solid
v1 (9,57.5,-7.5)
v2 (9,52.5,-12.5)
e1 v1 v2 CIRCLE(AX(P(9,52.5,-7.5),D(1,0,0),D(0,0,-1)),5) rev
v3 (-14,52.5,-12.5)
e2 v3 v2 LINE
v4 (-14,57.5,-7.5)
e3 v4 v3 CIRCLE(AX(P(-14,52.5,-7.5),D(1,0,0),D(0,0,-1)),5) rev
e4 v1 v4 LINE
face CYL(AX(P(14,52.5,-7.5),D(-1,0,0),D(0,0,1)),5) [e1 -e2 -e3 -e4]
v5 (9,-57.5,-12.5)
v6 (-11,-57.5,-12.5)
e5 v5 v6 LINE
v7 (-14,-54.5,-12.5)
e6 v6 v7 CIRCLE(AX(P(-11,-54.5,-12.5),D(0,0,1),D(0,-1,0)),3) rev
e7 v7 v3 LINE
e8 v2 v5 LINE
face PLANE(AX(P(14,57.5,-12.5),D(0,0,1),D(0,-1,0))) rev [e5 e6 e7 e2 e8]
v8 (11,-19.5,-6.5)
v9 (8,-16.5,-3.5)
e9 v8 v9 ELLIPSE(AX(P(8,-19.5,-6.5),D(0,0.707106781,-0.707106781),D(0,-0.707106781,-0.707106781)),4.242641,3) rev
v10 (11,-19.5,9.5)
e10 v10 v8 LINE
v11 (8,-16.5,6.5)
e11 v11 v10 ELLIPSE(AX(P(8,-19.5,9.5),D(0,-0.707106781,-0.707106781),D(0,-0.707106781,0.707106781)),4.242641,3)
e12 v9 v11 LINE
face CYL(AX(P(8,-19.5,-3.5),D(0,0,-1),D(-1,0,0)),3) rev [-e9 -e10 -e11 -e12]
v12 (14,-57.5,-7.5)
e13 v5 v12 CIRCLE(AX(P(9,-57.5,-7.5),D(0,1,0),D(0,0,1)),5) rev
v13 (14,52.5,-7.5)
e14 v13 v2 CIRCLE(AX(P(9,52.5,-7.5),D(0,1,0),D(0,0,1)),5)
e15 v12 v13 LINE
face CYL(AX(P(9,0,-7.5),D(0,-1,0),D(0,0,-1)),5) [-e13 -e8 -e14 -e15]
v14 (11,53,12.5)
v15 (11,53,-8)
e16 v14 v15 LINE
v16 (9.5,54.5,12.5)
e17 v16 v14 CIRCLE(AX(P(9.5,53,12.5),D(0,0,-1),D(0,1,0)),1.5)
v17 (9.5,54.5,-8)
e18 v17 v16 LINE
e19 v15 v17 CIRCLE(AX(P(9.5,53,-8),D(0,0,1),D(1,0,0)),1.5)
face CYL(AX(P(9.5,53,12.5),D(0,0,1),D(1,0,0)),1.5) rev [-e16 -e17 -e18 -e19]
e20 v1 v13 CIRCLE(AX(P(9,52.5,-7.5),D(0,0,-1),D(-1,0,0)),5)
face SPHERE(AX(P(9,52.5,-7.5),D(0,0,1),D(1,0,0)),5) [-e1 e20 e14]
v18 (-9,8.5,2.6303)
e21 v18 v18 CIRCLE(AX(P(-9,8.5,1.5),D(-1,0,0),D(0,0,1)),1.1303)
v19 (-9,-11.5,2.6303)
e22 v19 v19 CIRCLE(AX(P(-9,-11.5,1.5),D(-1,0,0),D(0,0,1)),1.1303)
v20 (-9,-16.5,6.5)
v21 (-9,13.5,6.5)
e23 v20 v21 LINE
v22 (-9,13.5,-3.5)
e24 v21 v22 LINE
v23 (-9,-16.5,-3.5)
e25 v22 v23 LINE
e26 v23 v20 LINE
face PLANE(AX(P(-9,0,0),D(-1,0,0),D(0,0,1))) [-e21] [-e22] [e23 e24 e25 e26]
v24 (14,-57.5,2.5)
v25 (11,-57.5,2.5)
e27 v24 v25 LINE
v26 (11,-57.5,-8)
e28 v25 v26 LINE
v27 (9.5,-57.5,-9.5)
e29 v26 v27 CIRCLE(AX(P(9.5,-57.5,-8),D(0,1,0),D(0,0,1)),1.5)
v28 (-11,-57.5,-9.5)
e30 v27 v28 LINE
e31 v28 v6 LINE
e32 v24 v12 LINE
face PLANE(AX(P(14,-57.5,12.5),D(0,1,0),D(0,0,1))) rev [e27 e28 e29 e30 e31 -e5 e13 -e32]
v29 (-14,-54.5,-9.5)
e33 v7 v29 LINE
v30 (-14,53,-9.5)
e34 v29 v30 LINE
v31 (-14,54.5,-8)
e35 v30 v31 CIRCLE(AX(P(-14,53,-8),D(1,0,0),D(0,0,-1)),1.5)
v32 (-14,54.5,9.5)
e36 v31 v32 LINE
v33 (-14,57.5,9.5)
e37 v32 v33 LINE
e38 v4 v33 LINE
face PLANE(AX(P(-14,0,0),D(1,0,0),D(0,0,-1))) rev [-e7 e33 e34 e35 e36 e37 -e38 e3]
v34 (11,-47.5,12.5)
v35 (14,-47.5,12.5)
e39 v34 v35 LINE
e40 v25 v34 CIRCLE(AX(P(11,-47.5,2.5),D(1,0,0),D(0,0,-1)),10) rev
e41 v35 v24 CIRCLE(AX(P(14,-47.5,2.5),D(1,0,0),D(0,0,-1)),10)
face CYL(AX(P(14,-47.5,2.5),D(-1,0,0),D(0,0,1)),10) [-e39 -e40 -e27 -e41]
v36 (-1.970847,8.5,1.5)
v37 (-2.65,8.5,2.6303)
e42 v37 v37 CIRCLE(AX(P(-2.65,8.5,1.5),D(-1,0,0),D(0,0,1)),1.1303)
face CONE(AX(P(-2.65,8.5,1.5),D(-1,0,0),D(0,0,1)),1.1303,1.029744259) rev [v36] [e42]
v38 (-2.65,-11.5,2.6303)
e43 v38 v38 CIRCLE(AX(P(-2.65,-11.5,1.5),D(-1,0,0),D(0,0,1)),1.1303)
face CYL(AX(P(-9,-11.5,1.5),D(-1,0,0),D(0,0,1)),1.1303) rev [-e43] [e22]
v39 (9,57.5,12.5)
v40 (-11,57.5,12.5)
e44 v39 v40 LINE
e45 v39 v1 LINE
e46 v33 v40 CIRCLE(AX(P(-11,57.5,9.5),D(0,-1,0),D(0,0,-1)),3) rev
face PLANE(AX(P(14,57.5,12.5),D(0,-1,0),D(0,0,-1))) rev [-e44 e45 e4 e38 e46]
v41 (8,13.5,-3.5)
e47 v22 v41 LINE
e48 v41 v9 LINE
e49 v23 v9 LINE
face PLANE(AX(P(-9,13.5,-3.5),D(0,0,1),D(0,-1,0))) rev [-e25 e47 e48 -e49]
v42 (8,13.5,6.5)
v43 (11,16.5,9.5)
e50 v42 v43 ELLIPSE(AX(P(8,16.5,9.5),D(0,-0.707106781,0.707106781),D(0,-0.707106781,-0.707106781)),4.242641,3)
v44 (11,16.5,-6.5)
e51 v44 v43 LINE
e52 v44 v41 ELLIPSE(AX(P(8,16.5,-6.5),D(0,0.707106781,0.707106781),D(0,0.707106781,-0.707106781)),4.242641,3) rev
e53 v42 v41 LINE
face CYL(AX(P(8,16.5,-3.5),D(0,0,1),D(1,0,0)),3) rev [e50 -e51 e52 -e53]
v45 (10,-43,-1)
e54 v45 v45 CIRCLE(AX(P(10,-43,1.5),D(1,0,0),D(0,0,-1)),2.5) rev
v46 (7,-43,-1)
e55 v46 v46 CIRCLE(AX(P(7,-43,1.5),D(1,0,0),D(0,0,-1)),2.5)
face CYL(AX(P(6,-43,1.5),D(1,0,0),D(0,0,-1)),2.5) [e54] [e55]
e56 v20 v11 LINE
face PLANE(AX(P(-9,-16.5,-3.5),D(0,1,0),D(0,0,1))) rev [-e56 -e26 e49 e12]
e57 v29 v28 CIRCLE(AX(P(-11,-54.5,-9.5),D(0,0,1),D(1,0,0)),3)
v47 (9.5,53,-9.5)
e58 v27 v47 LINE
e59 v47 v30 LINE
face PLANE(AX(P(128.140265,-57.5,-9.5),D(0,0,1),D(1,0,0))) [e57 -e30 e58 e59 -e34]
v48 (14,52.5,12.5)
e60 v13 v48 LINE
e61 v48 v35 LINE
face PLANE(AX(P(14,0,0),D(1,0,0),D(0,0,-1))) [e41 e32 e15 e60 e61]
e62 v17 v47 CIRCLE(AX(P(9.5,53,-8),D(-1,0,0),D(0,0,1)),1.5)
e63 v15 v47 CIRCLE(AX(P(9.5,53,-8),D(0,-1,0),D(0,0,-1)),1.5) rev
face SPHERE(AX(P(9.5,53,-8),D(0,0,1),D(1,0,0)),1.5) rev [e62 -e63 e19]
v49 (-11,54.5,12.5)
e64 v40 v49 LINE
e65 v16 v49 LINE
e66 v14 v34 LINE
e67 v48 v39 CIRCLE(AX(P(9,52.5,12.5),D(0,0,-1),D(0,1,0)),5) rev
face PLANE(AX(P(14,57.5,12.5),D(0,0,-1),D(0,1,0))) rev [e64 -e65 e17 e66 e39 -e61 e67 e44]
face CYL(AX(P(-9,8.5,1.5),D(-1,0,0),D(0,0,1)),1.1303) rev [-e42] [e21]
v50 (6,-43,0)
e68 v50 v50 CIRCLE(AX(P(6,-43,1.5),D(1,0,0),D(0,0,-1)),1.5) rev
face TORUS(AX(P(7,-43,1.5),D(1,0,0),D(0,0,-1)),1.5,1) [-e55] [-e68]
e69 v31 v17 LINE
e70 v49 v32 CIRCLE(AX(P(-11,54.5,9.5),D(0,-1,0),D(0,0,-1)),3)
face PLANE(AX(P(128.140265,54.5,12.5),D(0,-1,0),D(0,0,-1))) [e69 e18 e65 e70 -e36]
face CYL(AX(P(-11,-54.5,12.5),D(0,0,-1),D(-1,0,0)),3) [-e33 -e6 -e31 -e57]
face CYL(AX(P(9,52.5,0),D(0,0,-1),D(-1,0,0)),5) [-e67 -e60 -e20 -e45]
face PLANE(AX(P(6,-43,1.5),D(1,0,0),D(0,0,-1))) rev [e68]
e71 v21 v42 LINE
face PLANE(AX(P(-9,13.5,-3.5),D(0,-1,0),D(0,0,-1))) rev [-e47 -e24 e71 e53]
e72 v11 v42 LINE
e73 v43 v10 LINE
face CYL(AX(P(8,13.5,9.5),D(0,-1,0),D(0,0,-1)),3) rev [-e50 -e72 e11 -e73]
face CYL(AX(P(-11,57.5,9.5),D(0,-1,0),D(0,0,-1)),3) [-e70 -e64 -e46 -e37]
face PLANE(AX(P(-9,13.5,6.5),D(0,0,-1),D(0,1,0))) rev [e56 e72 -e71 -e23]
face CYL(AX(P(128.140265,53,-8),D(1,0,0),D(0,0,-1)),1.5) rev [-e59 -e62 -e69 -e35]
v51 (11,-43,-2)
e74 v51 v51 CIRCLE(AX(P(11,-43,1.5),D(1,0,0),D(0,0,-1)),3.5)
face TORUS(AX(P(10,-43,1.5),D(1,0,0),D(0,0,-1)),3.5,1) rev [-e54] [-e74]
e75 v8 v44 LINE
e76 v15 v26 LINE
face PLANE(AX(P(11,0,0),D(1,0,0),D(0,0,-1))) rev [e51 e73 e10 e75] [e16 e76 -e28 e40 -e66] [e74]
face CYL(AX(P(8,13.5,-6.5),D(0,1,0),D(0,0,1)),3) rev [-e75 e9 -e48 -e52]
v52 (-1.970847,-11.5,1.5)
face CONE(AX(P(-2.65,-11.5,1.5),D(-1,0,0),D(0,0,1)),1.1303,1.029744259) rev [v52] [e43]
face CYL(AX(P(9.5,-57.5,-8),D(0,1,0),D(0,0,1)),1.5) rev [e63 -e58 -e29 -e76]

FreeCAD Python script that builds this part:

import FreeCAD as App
import Part
import Sketcher
from FreeCAD import Vector
Q = App.Units.Quantity


def edges_at(feature, points):
    """Names of the edges that pass closest to the given points."""
    edges = feature.Shape.Edges
    near = lambda p: min(range(len(edges)), key=lambda i: edges[i].distToShape(Part.Vertex(*p))[0])
    return sorted({f"Edge{near(p) + 1}" for p in points})

doc = App.newDocument("Part")
body = doc.addObject("PartDesign::Body", "Body")

sketch1 = doc.addObject("Sketcher::SketchObject", "Sketch")
body.addObject(sketch1)
sketch1.AttachmentSupport = (doc.YZ_Plane, [""])
sketch1.MapMode = "FlatFace"
sketch1.addGeometry(Part.LineSegment(Vector(58, 12, 0), Vector(-58, 12, 0)), False)
sketch1.addGeometry(Part.LineSegment(Vector(-58, 12, 0), Vector(-58, -12, 0)), False)
sketch1.addGeometry(Part.LineSegment(Vector(-58, -12, 0), Vector(58, -12, 0)), False)
sketch1.addGeometry(Part.LineSegment(Vector(58, -12, 0), Vector(58, 12, 0)), False)
sketch1.addConstraint(Sketcher.Constraint("Coincident", 0, 2, 1, 1))
sketch1.addConstraint(Sketcher.Constraint("Coincident", 1, 2, 2, 1))
sketch1.addConstraint(Sketcher.Constraint("Coincident", 2, 2, 3, 1))
sketch1.addConstraint(Sketcher.Constraint("Coincident", 3, 2, 0, 1))
sketch1.addConstraint(Sketcher.Constraint("Horizontal", 0))
sketch1.addConstraint(Sketcher.Constraint("Vertical", 1))
sketch1.addConstraint(Sketcher.Constraint("Horizontal", 2))
sketch1.addConstraint(Sketcher.Constraint("Vertical", 3))
sketch1.addConstraint(Sketcher.Constraint("Symmetric", 0, 2, 2, 2, -1, 1))
sketch1.addConstraint(Sketcher.Constraint("DistanceX", 0, 2, 0, 1, Q("115 mm")))
sketch1.addConstraint(Sketcher.Constraint("DistanceY", 1, 2, 1, 1, Q("25 mm")))
pad1 = doc.addObject("PartDesign::Pad", "Pad")
body.addObject(pad1)
pad1.Profile = sketch1
pad1.Length = 28
pad1.Midplane = True

sketch2 = doc.addObject("Sketcher::SketchObject", "Sketch001")
body.addObject(sketch2)
sketch2.AttachmentSupport = (doc.YZ_Plane, [""])
sketch2.MapMode = "FlatFace"
sketch2.AttachmentOffset = App.Placement(Vector(0, 0, -14), App.Rotation())
sketch2.addGeometry(Part.LineSegment(Vector(54, 12, 0), Vector(-58, 12, 0)), False)
sketch2.addGeometry(Part.LineSegment(Vector(-58, 12, 0), Vector(-58, -10, 0)), False)
sketch2.addGeometry(Part.LineSegment(Vector(-58, -10, 0), Vector(54, -10, 0)), False)
sketch2.addGeometry(Part.LineSegment(Vector(54, -10, 0), Vector(54, 12, 0)), False)
sketch2.addConstraint(Sketcher.Constraint("Coincident", 0, 2, 1, 1))
sketch2.addConstraint(Sketcher.Constraint("Coincident", 1, 2, 2, 1))
sketch2.addConstraint(Sketcher.Constraint("Coincident", 2, 2, 3, 1))
sketch2.addConstraint(Sketcher.Constraint("Coincident", 3, 2, 0, 1))
sketch2.addConstraint(Sketcher.Constraint("Horizontal", 0))
sketch2.addConstraint(Sketcher.Constraint("Vertical", 1))
sketch2.addConstraint(Sketcher.Constraint("Horizontal", 2))
sketch2.addConstraint(Sketcher.Constraint("Vertical", 3))
sketch2.addConstraint(Sketcher.Constraint("DistanceX", 0, 2, 0, 1, Q("112 mm")))
sketch2.addConstraint(Sketcher.Constraint("DistanceY", 1, 2, 1, 1, Q("22 mm")))
sketch2.addConstraint(Sketcher.Constraint("DistanceX", 0, 2, -1, 1, Q("57.5 mm")))
sketch2.addConstraint(Sketcher.Constraint("DistanceY", -1, 1, 0, 2, Q("12.5 mm")))
pocket1 = doc.addObject("PartDesign::Pocket", "Pocket")
body.addObject(pocket1)
pocket1.Profile = sketch2
pocket1.Length = 25
pocket1.Reversed = True

sketch3 = doc.addObject("Sketcher::SketchObject", "Sketch002")
body.addObject(sketch3)
sketch3.AttachmentSupport = (doc.YZ_Plane, [""])
sketch3.MapMode = "FlatFace"
sketch3.AttachmentOffset = App.Placement(Vector(0, 0, 11), App.Rotation())
sketch3.addGeometry(Part.LineSegment(Vector(14, -4, 0), Vector(-16, -4, 0)), False)
sketch3.addGeometry(Part.LineSegment(Vector(-16, -4, 0), Vector(-16, 6, 0)), False)
sketch3.addGeometry(Part.LineSegment(Vector(-16, 6, 0), Vector(14, 6, 0)), False)
sketch3.addGeometry(Part.LineSegment(Vector(14, 6, 0), Vector(14, -4, 0)), False)
sketch3.addConstraint(Sketcher.Constraint("Coincident", 0, 2, 1, 1))
sketch3.addConstraint(Sketcher.Constraint("Coincident", 1, 2, 2, 1))
sketch3.addConstraint(Sketcher.Constraint("Coincident", 2, 2, 3, 1))
sketch3.addConstraint(Sketcher.Constraint("Coincident", 3, 2, 0, 1))
sketch3.addConstraint(Sketcher.Constraint("Horizontal", 0))
sketch3.addConstraint(Sketcher.Constraint("Vertical", 1))
sketch3.addConstraint(Sketcher.Constraint("Horizontal", 2))
sketch3.addConstraint(Sketcher.Constraint("Vertical", 3))
sketch3.addConstraint(Sketcher.Constraint("DistanceX", 0, 2, 0, 1, Q("30 mm")))
sketch3.addConstraint(Sketcher.Constraint("DistanceY", 1, 1, 1, 2, Q("10 mm")))
sketch3.addConstraint(Sketcher.Constraint("DistanceX", 0, 2, -1, 1, Q("16.5 mm")))
sketch3.addConstraint(Sketcher.Constraint("DistanceY", 0, 2, -1, 1, Q("3.5 mm")))
pad2 = doc.addObject("PartDesign::Pad", "Pad001")
body.addObject(pad2)
pad2.Profile = sketch3
pad2.Length = 20
pad2.Reversed = True

sketch4 = doc.addObject("Sketcher::SketchObject", "Sketch003")
body.addObject(sketch4)
sketch4.AttachmentSupport = (doc.YZ_Plane, [""])
sketch4.MapMode = "FlatFace"
sketch4.AttachmentOffset = App.Placement(Vector(0, 0, -9), App.Rotation())
sketch4.addGeometry(Part.Circle(Vector(8.5, 1.5, 0), Vector(0, 0, 1), 1.1), False)
sketch4.addGeometry(Part.Circle(Vector(-11.5, 1.5, 0), Vector(0, 0, 1), 1.1), False)
sketch4.addConstraint(Sketcher.Constraint("Equal", 0, 1))
sketch4.addConstraint(Sketcher.Constraint("Horizontal", 0, 3, 1, 3))
sketch4.addConstraint(Sketcher.Constraint("DistanceX", 1, 3, 0, 3, Q("20 mm")))
sketch4.addConstraint(Sketcher.Constraint("Diameter", 0, Q("2.2606 mm")))
sketch4.addConstraint(Sketcher.Constraint("DistanceX", -1, 1, 0, 3, Q("8.5 mm")))
sketch4.addConstraint(Sketcher.Constraint("DistanceY", -1, 1, 0, 3, Q("1.5 mm")))
doc.recompute()
hole = doc.addObject("PartDesign::Hole", "Hole")
body.addObject(hole)
hole.Profile = sketch4
hole.ThreadType = "None"
hole.Diameter = 2.2606
hole.DepthType = "Dimension"
hole.Depth = 6.35
hole.DrillPoint = "Angled"
hole.DrillPointAngle = 118
hole.Reversed = True
doc.recompute()

fillet = doc.addObject("PartDesign::Fillet", "Fillet")
body.addObject(fillet)
fillet.Base = (hole, edges_at(hole, [(-1.5, 54.5, -9.5), (11, 54.5, 1.5), (11, -1.5, -9.5)]))
fillet.Radius = 1.5
doc.recompute()

fillet2 = doc.addObject("PartDesign::Fillet", "Fillet001")
body.addObject(fillet2)
fillet2.Base = (fillet, edges_at(fillet, [(14, 0, -12.5), (0, 57.5, -12.5), (14, 57.5, 0)]))
fillet2.Radius = 5
doc.recompute()

fillet3 = doc.addObject("PartDesign::Fillet", "Fillet002")
body.addObject(fillet3)
fillet3.Base = (fillet2, edges_at(fillet2, [(12.5, -57.5, 12.5)]))
fillet3.Radius = 10
doc.recompute()

fillet4 = doc.addObject("PartDesign::Fillet", "Fillet003")
body.addObject(fillet4)
fillet4.Base = (fillet3, edges_at(fillet3, [(-14, -57.5, -11), (-14, 56, 12.5)]))
fillet4.Radius = 3
doc.recompute()

fillet5 = doc.addObject("PartDesign::Fillet", "Fillet004")
body.addObject(fillet5)
fillet5.Base = (fillet4, edges_at(fillet4, [
    (11, -1.5, 6.5),
    (11, 13.5, 1.5),
    (11, -1.5, -3.5),
    (11, -16.5, 1.5),
]))
fillet5.Radius = 3

sketch5 = doc.addObject("Sketcher::SketchObject", "Sketch004")
body.addObject(sketch5)
sketch5.AttachmentSupport = (doc.YZ_Plane, [""])
sketch5.MapMode = "FlatFace"
sketch5.AttachmentOffset = App.Placement(Vector(0, 0, 14), App.Rotation())
sketch5.addGeometry(Part.Circle(Vector(-43, 1.5, 0), Vector(0, 0, 1), 2.5), False)
sketch5.addConstraint(Sketcher.Constraint("Diameter", 0, Q("5 mm")))
sketch5.addConstraint(Sketcher.Constraint("DistanceX", 0, 3, -1, 1, Q("43 mm")))
sketch5.addConstraint(Sketcher.Constraint("DistanceY", -1, 1, 0, 3, Q("1.5 mm")))
pad3 = doc.addObject("PartDesign::Pad", "Pad002")
body.addObject(pad3)
pad3.Profile = sketch5
pad3.Length = 8
pad3.Reversed = True
doc.recompute()

fillet6 = doc.addObject("PartDesign::Fillet", "Fillet005")
body.addObject(fillet6)
fillet6.Base = (pad3, edges_at(pad3, [(6, -43, 4), (11, -43, 4)]))
fillet6.Radius = 1

doc.recompute()
